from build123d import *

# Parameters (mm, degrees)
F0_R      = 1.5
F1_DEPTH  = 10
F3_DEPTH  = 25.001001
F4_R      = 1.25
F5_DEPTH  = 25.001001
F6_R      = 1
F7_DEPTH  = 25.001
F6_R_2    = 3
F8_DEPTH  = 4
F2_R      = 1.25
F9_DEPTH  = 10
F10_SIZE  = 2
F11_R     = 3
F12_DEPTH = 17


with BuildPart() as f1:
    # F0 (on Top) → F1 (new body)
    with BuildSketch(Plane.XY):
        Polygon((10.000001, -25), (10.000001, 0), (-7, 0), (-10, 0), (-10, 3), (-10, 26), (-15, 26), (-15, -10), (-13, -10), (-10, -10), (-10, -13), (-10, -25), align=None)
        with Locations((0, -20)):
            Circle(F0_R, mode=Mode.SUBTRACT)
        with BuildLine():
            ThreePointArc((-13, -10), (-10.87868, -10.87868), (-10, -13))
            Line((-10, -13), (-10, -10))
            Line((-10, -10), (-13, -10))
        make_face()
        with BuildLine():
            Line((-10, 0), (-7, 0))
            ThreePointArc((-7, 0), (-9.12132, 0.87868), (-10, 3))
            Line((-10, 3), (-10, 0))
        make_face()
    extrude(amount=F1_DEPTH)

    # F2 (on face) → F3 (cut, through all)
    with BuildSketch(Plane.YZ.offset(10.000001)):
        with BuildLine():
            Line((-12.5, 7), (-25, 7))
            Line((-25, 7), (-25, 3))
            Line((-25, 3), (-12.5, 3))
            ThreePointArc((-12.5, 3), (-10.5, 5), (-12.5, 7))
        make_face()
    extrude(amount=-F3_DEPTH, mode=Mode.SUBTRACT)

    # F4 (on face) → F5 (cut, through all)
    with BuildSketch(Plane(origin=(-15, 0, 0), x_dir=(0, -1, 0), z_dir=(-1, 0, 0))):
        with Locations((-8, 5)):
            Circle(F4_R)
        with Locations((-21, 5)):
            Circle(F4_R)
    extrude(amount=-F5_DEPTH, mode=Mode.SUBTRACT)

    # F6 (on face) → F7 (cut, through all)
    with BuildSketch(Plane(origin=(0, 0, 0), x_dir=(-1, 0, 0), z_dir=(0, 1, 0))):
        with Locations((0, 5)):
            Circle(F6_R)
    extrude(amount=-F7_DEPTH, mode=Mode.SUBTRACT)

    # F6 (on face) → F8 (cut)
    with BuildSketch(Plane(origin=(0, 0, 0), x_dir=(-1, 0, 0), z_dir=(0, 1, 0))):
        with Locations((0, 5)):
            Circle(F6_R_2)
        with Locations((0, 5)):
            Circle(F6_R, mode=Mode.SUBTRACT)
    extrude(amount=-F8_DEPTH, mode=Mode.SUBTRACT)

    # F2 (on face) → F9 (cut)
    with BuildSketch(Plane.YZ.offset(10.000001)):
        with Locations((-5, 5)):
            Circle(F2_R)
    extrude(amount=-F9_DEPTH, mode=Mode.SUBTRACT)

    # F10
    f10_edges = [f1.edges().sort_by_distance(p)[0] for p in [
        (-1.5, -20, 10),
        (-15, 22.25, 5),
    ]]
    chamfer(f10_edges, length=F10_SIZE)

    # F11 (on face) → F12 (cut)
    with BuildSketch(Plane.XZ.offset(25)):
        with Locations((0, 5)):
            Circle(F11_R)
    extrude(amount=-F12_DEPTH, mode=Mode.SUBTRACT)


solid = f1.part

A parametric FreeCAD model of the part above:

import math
import FreeCAD as App
import Part
import Sketcher

V = App.Vector


def edges_at(feature, points):
    """Names of the edges that pass closest to the given points."""
    edges = feature.Shape.Edges
    near = lambda p: min(range(len(edges)), key=lambda i: edges[i].distToShape(Part.Vertex(*p))[0])
    return sorted({f"Edge{near(p) + 1}" for p in points})

doc = App.newDocument("Part")
body = doc.addObject("PartDesign::Body", "Body")

# Sketch on XY plane
sketch1 = body.newObject("Sketcher::SketchObject", "Sketch")
sketch1.AttachmentSupport = (doc.getObject("XY_Plane"), [""])
sketch1.MapMode = "FlatFace"
sketch1.addGeometry(Part.LineSegment(V(10, -25, 0), V(10, 0, 0)), False)
sketch1.addGeometry(Part.LineSegment(V(10, 0, 0), V(-7, 0, 0)), False)
sketch1.addGeometry(Part.ArcOfCircle(Part.Circle(V(-7, 3, 0), V(0, 0, 1), 3), math.radians(-180), math.radians(-90)), False)
sketch1.addGeometry(Part.LineSegment(V(-10, 3, 0), V(-10, 26, 0)), False)
sketch1.addGeometry(Part.LineSegment(V(-10, 26, 0), V(-15, 26, 0)), False)
sketch1.addGeometry(Part.LineSegment(V(-15, 26, 0), V(-15, -10, 0)), False)
sketch1.addGeometry(Part.LineSegment(V(-15, -10, 0), V(-13, -10, 0)), False)
sketch1.addGeometry(Part.ArcOfCircle(Part.Circle(V(-13, -13, 0), V(0, 0, 1), 3), math.radians(0), math.radians(90)), False)
sketch1.addGeometry(Part.LineSegment(V(-10, -13, 0), V(-10, -25, 0)), False)
sketch1.addGeometry(Part.LineSegment(V(-10, -25, 0), V(10, -25, 0)), False)
sketch1.addGeometry(Part.Circle(V(0, -20, 0), V(0, 0, 1), 1.5), False)
sketch1.addConstraint(Sketcher.Constraint("Coincident", 0, 2, 1, 1))
sketch1.addConstraint(Sketcher.Constraint("Tangent", 1, 2, 2, 2))
sketch1.addConstraint(Sketcher.Constraint("Tangent", 2, 1, 3, 1))
sketch1.addConstraint(Sketcher.Constraint("Coincident", 3, 2, 4, 1))
sketch1.addConstraint(Sketcher.Constraint("Coincident", 4, 2, 5, 1))
sketch1.addConstraint(Sketcher.Constraint("Coincident", 5, 2, 6, 1))
sketch1.addConstraint(Sketcher.Constraint("Tangent", 6, 2, 7, 2))
sketch1.addConstraint(Sketcher.Constraint("Tangent", 7, 1, 8, 1))
sketch1.addConstraint(Sketcher.Constraint("Coincident", 8, 2, 9, 1))
sketch1.addConstraint(Sketcher.Constraint("Coincident", 9, 2, 0, 1))
sketch1.addConstraint(Sketcher.Constraint("Vertical", 0))
sketch1.addConstraint(Sketcher.Constraint("Horizontal", 1))
sketch1.addConstraint(Sketcher.Constraint("Vertical", 3))
sketch1.addConstraint(Sketcher.Constraint("Horizontal", 4))
sketch1.addConstraint(Sketcher.Constraint("Vertical", 5))
sketch1.addConstraint(Sketcher.Constraint("Horizontal", 6))
sketch1.addConstraint(Sketcher.Constraint("Vertical", 8))
sketch1.addConstraint(Sketcher.Constraint("Horizontal", 9))
sketch1.addConstraint(Sketcher.Constraint("Equal", 2, 7))
sketch1.addConstraint(Sketcher.Constraint("PointOnObject", 10, 3, -2))
sketch1.addConstraint(Sketcher.Constraint("PointOnObject", 0, 2, -1))
sketch1.addConstraint(Sketcher.Constraint("Vertical", 3, 2, 7, 1))
sketch1.addConstraint(Sketcher.Constraint("Diameter", 10, 3.0))
sketch1.addConstraint(Sketcher.Constraint("Radius", 2, 3.000001))
sketch1.addConstraint(Sketcher.Constraint("DistanceX", 1, 2, 1, 1, 17.000001))
sketch1.addConstraint(Sketcher.Constraint("DistanceX", 4, 2, 4, 1, 5.0))
sketch1.addConstraint(Sketcher.Constraint("DistanceY", 0, 1, 0, 2, 25.0))
sketch1.addConstraint(Sketcher.Constraint("DistanceY", 3, 1, 3, 2, 23.0))
sketch1.addConstraint(Sketcher.Constraint("DistanceY", 5, 2, 5, 1, 36.0))
sketch1.addConstraint(Sketcher.Constraint("DistanceX", 2, 3, -1, 1, 6.999999))
sketch1.addConstraint(Sketcher.Constraint("DistanceY", 10, 3, -1, 1, 20.0))
pad1 = body.newObject("PartDesign::Pad", "Pad")
pad1.Profile = sketch1
pad1.Length = 10

# Sketch on YZ plane
sketch2 = body.newObject("Sketcher::SketchObject", "Sketch001")
sketch2.AttachmentSupport = (doc.getObject("YZ_Plane"), [""])
sketch2.MapMode = "FlatFace"
sketch2.AttachmentOffset = App.Placement(V(0, 0, 10.000001), App.Rotation())
sketch2.addGeometry(Part.LineSegment(V(-12.5, 7, 0), V(-25, 7, 0)), False)
sketch2.addGeometry(Part.LineSegment(V(-25, 7, 0), V(-25, 3, 0)), False)
sketch2.addGeometry(Part.LineSegment(V(-25, 3, 0), V(-12.5, 3, 0)), False)
sketch2.addGeometry(Part.ArcOfCircle(Part.Circle(V(-12.5, 5, 0), V(0, 0, 1), 2), math.radians(-90), math.radians(90)), False)
sketch2.addConstraint(Sketcher.Constraint("Coincident", 0, 2, 1, 1))
sketch2.addConstraint(Sketcher.Constraint("Coincident", 1, 2, 2, 1))
sketch2.addConstraint(Sketcher.Constraint("Tangent", 2, 2, 3, 1))
sketch2.addConstraint(Sketcher.Constraint("Tangent", 3, 2, 0, 1))
sketch2.addConstraint(Sketcher.Constraint("Horizontal", 0))
sketch2.addConstraint(Sketcher.Constraint("Vertical", 1))
sketch2.addConstraint(Sketcher.Constraint("Horizontal", 2))
sketch2.addConstraint(Sketcher.Constraint("Radius", 3, 2.0))
sketch2.addConstraint(Sketcher.Constraint("DistanceX", 0, 2, 0, 1, 12.5))
sketch2.addConstraint(Sketcher.Constraint("DistanceY", -1, 1, 3, 3, 5.0))
sketch2.addConstraint(Sketcher.Constraint("DistanceX", 0, 2, -1, 1, 25.0))
pocket1 = body.newObject("PartDesign::Pocket", "Pocket")
pocket1.Profile = sketch2
pocket1.Type = "ThroughAll"

# Sketch on YZ plane
sketch3 = body.newObject("Sketcher::SketchObject", "Sketch002")
sketch3.AttachmentSupport = (doc.getObject("YZ_Plane"), [""])
sketch3.MapMode = "FlatFace"
sketch3.AttachmentOffset = App.Placement(V(0, 0, -15), App.Rotation())
sketch3.addGeometry(Part.Circle(V(8, 5, 0), V(0, 0, 1), 1.2), False)
sketch3.addGeometry(Part.Circle(V(21, 5, 0), V(0, 0, 1), 1.2), False)
sketch3.addConstraint(Sketcher.Constraint("Equal", 0, 1))
sketch3.addConstraint(Sketcher.Constraint("Horizontal", 0, 3, 1, 3))
sketch3.addConstraint(Sketcher.Constraint("Diameter", 0, 2.5))
sketch3.addConstraint(Sketcher.Constraint("DistanceX", -1, 1, 0, 3, 8.0))
sketch3.addConstraint(Sketcher.Constraint("DistanceY", -1, 1, 0, 3, 5.0))
sketch3.addConstraint(Sketcher.Constraint("DistanceX", -1, 1, 1, 3, 21.0))
pocket2 = body.newObject("PartDesign::Pocket", "Pocket001")
pocket2.Profile = sketch3
pocket2.Type = "ThroughAll"
pocket2.Reversed = True

# Sketch on XZ plane
sketch4 = body.newObject("Sketcher::SketchObject", "Sketch003")
sketch4.AttachmentSupport = (doc.getObject("XZ_Plane"), [""])
sketch4.MapMode = "FlatFace"
sketch4.addGeometry(Part.Circle(V(0, 5, 0), V(0, 0, 1), 1), False)
sketch4.addConstraint(Sketcher.Constraint("PointOnObject", 0, 3, -2))
sketch4.addConstraint(Sketcher.Constraint("Diameter", 0, 2.0))
sketch4.addConstraint(Sketcher.Constraint("DistanceY", -1, 1, 0, 3, 5.0))
pocket3 = body.newObject("PartDesign::Pocket", "Pocket002")
pocket3.Profile = sketch4
pocket3.Type = "ThroughAll"
pocket3.Reversed = True

# Sketch on XZ plane
sketch5 = body.newObject("Sketcher::SketchObject", "Sketch004")
sketch5.AttachmentSupport = (doc.getObject("XZ_Plane"), [""])
sketch5.MapMode = "FlatFace"
sketch5.addGeometry(Part.Circle(V(0, 5, 0), V(0, 0, 1), 3), False)
sketch5.addGeometry(Part.Circle(V(0, 5, 0), V(0, 0, 1), 1), False)
sketch5.addConstraint(Sketcher.Constraint("Coincident", 1, 3, 0, 3))
sketch5.addConstraint(Sketcher.Constraint("PointOnObject", 0, 3, -2))
sketch5.addConstraint(Sketcher.Constraint("Diameter", 0, 6.0))
sketch5.addConstraint(Sketcher.Constraint("Diameter", 1, 2.0))
sketch5.addConstraint(Sketcher.Constraint("DistanceY", -1, 1, 0, 3, 5.0))
pocket4 = body.newObject("PartDesign::Pocket", "Pocket003")
pocket4.Profile = sketch5
pocket4.Length = 4
pocket4.Reversed = True

# Sketch on YZ plane
sketch6 = body.newObject("Sketcher::SketchObject", "Sketch005")
sketch6.AttachmentSupport = (doc.getObject("YZ_Plane"), [""])
sketch6.MapMode = "FlatFace"
sketch6.AttachmentOffset = App.Placement(V(0, 0, 10.000001), App.Rotation())
sketch6.addGeometry(Part.Circle(V(-5, 5, 0), V(0, 0, 1), 1.2), False)
sketch6.addConstraint(Sketcher.Constraint("Diameter", 0, 2.5))
sketch6.addConstraint(Sketcher.Constraint("DistanceX", 0, 3, -1, 1, 5.0))
sketch6.addConstraint(Sketcher.Constraint("DistanceY", -1, 1, 0, 3, 5.0))
pocket5 = body.newObject("PartDesign::Pocket", "Pocket004")
pocket5.Profile = sketch6
pocket5.Length = 10
doc.recompute()

chamfer = body.newObject("PartDesign::Chamfer", "Chamfer")
chamfer.Base = (pocket5, edges_at(pocket5, [(-1.5, -20, 10), (-15, 22.25, 5)]))
chamfer.Size = 2

# Sketch on XZ plane
sketch7 = body.newObject("Sketcher::SketchObject", "Sketch006")
sketch7.AttachmentSupport = (doc.getObject("XZ_Plane"), [""])
sketch7.MapMode = "FlatFace"
sketch7.AttachmentOffset = App.Placement(V(0, 0, 25), App.Rotation())
sketch7.addGeometry(Part.Circle(V(0, 5, 0), V(0, 0, 1), 3), False)
sketch7.addConstraint(Sketcher.Constraint("PointOnObject", 0, 3, -2))
sketch7.addConstraint(Sketcher.Constraint("Diameter", 0, 6.0))
sketch7.addConstraint(Sketcher.Constraint("DistanceY", -1, 1, 0, 3, 5.0))
pocket6 = body.newObject("PartDesign::Pocket", "Pocket005")
pocket6.Profile = sketch7
pocket6.Length = 17

doc.recompute()
